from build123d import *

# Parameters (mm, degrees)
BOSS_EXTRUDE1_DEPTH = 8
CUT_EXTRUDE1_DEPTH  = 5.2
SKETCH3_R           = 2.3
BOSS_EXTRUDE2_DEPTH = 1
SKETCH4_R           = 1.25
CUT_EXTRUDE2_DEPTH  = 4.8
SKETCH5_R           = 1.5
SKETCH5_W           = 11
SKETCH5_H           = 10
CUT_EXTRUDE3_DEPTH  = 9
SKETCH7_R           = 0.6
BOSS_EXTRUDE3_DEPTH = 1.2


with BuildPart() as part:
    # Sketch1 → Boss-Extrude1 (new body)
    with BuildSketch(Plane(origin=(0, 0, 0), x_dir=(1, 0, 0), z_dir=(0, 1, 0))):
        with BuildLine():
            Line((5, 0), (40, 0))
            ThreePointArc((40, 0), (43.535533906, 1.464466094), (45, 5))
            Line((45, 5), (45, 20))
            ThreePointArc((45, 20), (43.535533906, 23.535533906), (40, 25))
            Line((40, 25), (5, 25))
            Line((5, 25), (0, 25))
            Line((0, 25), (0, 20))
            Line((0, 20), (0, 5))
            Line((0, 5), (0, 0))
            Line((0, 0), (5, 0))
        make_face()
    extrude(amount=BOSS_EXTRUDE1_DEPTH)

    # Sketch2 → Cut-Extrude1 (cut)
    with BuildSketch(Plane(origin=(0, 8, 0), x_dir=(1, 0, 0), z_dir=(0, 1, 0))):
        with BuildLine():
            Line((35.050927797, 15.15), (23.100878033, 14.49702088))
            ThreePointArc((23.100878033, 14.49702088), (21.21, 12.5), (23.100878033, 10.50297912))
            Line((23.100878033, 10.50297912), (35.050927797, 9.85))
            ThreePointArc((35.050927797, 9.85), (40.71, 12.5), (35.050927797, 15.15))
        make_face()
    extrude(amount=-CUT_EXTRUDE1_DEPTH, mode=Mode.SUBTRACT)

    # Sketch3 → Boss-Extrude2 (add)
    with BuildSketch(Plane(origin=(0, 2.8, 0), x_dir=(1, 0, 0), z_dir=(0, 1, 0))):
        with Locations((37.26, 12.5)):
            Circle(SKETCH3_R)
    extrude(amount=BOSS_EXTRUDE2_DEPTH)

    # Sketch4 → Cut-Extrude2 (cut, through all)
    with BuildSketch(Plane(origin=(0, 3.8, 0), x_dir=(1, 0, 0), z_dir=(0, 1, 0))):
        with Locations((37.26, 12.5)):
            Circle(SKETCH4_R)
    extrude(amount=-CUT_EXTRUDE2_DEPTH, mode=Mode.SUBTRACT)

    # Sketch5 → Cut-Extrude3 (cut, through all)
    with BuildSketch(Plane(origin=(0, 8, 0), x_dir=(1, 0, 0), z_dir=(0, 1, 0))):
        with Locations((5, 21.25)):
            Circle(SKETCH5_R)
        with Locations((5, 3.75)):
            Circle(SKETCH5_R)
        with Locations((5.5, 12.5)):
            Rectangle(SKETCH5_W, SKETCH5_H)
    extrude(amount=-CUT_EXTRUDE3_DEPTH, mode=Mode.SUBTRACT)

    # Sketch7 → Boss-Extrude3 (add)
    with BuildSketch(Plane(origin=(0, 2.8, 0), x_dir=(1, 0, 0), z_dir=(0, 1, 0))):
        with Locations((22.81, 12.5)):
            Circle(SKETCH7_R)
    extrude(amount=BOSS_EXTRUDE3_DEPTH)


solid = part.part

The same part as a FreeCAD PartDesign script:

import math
import FreeCAD as App
import Part
import Sketcher
from FreeCAD import Vector

doc = App.newDocument("Part")
params = doc.addObject("Spreadsheet::Sheet", "Params")
for row, (alias, value) in enumerate([
    ("sketch1_radius", "5 mm"),
    ("sketch1_width", "40 mm"),
    ("sketch1_height", "15 mm"),
    ("pad1_length", "8 mm"),
    ("sketch2_radius", "2 mm"),
    ("sketch2_radius2", "3.45 mm"),
    ("pocket1_length", "5.2 mm"),
    ("sketch3_diameter", "4.6 mm"),
    ("pad2_length", "1 mm"),
    ("sketch4_diameter", "2.5 mm"),
    ("sketch5_diameter", "3 mm"),
    ("sketch5_width", "11 mm"),
    ("sketch5_height", "10 mm"),
    ("sketch6_diameter", "1.2 mm"),
    ("pad3_length", "1.2 mm"),
], start=1):
    params.set(f"A{row}", alias)
    params.set(f"B{row}", "=" + value)
    params.setAlias(f"B{row}", alias)

body = doc.addObject("PartDesign::Body", "Body")

sketch1 = body.newObject("Sketcher::SketchObject", "Sketch")
sketch1.AttachmentSupport = (doc.getObject("XZ_Plane"), [""])
sketch1.MapMode = "FlatFace"
sketch1.addGeometry([
    Part.ArcOfCircle(Part.Circle(Vector(40, -5, 0), Vector(0, 0, 1), 5), math.radians(0), math.radians(90)),
    Part.LineSegment(Vector(45, -5, 0), Vector(45, -20, 0)),
    Part.ArcOfCircle(Part.Circle(Vector(40, -20, 0), Vector(0, 0, 1), 5), math.radians(-90), math.radians(0)),
    Part.LineSegment(Vector(40, -25, 0), Vector(0, -25, 0)),
    Part.LineSegment(Vector(0, -25, 0), Vector(0, 0, 0)),
    Part.LineSegment(Vector(0, 0, 0), Vector(40, 0, 0)),
], False)
sketch1.addConstraint([
    Sketcher.Constraint("Tangent", 0, 1, 1, 1),
    Sketcher.Constraint("Tangent", 1, 2, 2, 2),
    Sketcher.Constraint("Tangent", 2, 1, 3, 1),
    Sketcher.Constraint("Coincident", 3, 2, 4, 1),
    Sketcher.Constraint("Coincident", 4, 2, 5, 1),
    Sketcher.Constraint("Tangent", 5, 2, 0, 2),
    Sketcher.Constraint("Vertical", 1),
    Sketcher.Constraint("Horizontal", 3),
    Sketcher.Constraint("Vertical", 4),
    Sketcher.Constraint("Horizontal", 5),
    Sketcher.Constraint("Coincident", 4, 2, -1, 1),
    Sketcher.Constraint("Equal", 0, 2),
    Sketcher.Constraint("Radius", 0, 5.0),
    Sketcher.Constraint("DistanceX", 3, 2, 3, 1, 40.0),
    Sketcher.Constraint("DistanceY", 1, 2, 1, 1, 15.0),
])
sketch1.setExpression("Constraints[12]", "Params.sketch1_radius")
sketch1.setExpression("Constraints[13]", "Params.sketch1_width")
sketch1.setExpression("Constraints[14]", "Params.sketch1_height")
pad1 = body.newObject("PartDesign::Pad", "Pad")
pad1.Profile = sketch1
pad1.setExpression("Length", "Params.pad1_length")
pad1.Reversed = True

sketch2 = body.newObject("Sketcher::SketchObject", "Sketch001")
sketch2.AttachmentSupport = (doc.getObject("XZ_Plane"), [""])
sketch2.MapMode = "FlatFace"
sketch2.AttachmentOffset = App.Placement(Vector(0, 0, -8), App.Rotation())
sketch2.addGeometry([
    Part.LineSegment(Vector(35.050928, -15.15, 0), Vector(23.100878, -14.497021, 0)),
    Part.ArcOfCircle(Part.Circle(Vector(23.21, -12.5, 0), Vector(0, 0, 1), 2), math.radians(93.127667), math.radians(266.872333)),
    Part.LineSegment(Vector(23.100878, -10.502979, 0), Vector(35.050928, -9.85, 0)),
    Part.ArcOfCircle(Part.Circle(Vector(37.26, -12.5, 0), Vector(0, 0, 1), 3.45), math.radians(-129.814998), math.radians(129.814998)),
], False)
sketch2.addConstraint([
    Sketcher.Constraint("Tangent", 0, 2, 1, 2),
    Sketcher.Constraint("Tangent", 1, 1, 2, 1),
    Sketcher.Constraint("Coincident", 2, 2, 3, 2),
    Sketcher.Constraint("Coincident", 3, 1, 0, 1),
    Sketcher.Constraint("Horizontal", 1, 3, 3, 3),
    Sketcher.Constraint("Vertical", 0, 2, 1, 1),
    Sketcher.Constraint("Radius", 1, 2.0),
    Sketcher.Constraint("Radius", 3, 3.45),
    Sketcher.Constraint("DistanceY", 1, 3, -1, 1, 12.5),
    Sketcher.Constraint("DistanceY", 3, 1, 2, 2, 5.3),
    Sketcher.Constraint("DistanceX", -1, 1, 1, 3, 23.21),
    Sketcher.Constraint("DistanceX", -1, 1, 3, 3, 37.26),
])
sketch2.setExpression("Constraints[6]", "Params.sketch2_radius")
sketch2.setExpression("Constraints[7]", "Params.sketch2_radius2")
pocket1 = body.newObject("PartDesign::Pocket", "Pocket")
pocket1.Profile = sketch2
pocket1.setExpression("Length", "Params.pocket1_length")
pocket1.Reversed = True

sketch3 = body.newObject("Sketcher::SketchObject", "Sketch002")
sketch3.AttachmentSupport = (doc.getObject("XZ_Plane"), [""])
sketch3.MapMode = "FlatFace"
sketch3.AttachmentOffset = App.Placement(Vector(0, 0, -2.8), App.Rotation())
sketch3.addGeometry(Part.Circle(Vector(37.26, -12.5, 0), Vector(0, 0, 1), 2.3), False)
sketch3.addConstraint([
    Sketcher.Constraint("Diameter", 0, 4.6),
    Sketcher.Constraint("DistanceY", 0, 3, -1, 1, 12.5),
    Sketcher.Constraint("DistanceX", -1, 1, 0, 3, 37.26),
])
sketch3.setExpression("Constraints[0]", "Params.sketch3_diameter")
pad2 = body.newObject("PartDesign::Pad", "Pad001")
pad2.Profile = sketch3
pad2.setExpression("Length", "Params.pad2_length")
pad2.Reversed = True

sketch4 = body.newObject("Sketcher::SketchObject", "Sketch003")
sketch4.AttachmentSupport = (doc.getObject("XZ_Plane"), [""])
sketch4.MapMode = "FlatFace"
sketch4.AttachmentOffset = App.Placement(Vector(0, 0, -3.8), App.Rotation())
sketch4.addGeometry(Part.Circle(Vector(37.26, -12.5, 0), Vector(0, 0, 1), 1.25), False)
sketch4.addConstraint([
    Sketcher.Constraint("Diameter", 0, 2.5),
    Sketcher.Constraint("DistanceY", 0, 3, -1, 1, 12.5),
    Sketcher.Constraint("DistanceX", -1, 1, 0, 3, 37.26),
])
sketch4.setExpression("Constraints[0]", "Params.sketch4_diameter")
pocket2 = body.newObject("PartDesign::Pocket", "Pocket001")
pocket2.Profile = sketch4
pocket2.Type = "ThroughAll"
pocket2.Reversed = True

sketch5 = body.newObject("Sketcher::SketchObject", "Sketch004")
sketch5.AttachmentSupport = (doc.getObject("XZ_Plane"), [""])
sketch5.MapMode = "FlatFace"
sketch5.AttachmentOffset = App.Placement(Vector(0, 0, -8), App.Rotation())
sketch5.addGeometry([
    Part.Circle(Vector(5, -21.25, 0), Vector(0, 0, 1), 1.5),
    Part.Circle(Vector(5, -3.75, 0), Vector(0, 0, 1), 1.5),
    Part.LineSegment(Vector(0, -17.5, 0), Vector(0, -7.5, 0)),
    Part.LineSegment(Vector(0, -7.5, 0), Vector(11, -7.5, 0)),
    Part.LineSegment(Vector(11, -7.5, 0), Vector(11, -17.5, 0)),
    Part.LineSegment(Vector(11, -17.5, 0), Vector(0, -17.5, 0)),
], False)
sketch5.addConstraint([
    Sketcher.Constraint("Coincident", 2, 2, 3, 1),
    Sketcher.Constraint("Coincident", 3, 2, 4, 1),
    Sketcher.Constraint("Coincident", 4, 2, 5, 1),
    Sketcher.Constraint("Coincident", 5, 2, 2, 1),
    Sketcher.Constraint("Vertical", 2),
    Sketcher.Constraint("Horizontal", 3),
    Sketcher.Constraint("Vertical", 4),
    Sketcher.Constraint("Horizontal", 5),
    Sketcher.Constraint("Equal", 0, 1),
    Sketcher.Constraint("PointOnObject", 2, 2, -2),
    Sketcher.Constraint("Vertical", 0, 3, 1, 3),
    Sketcher.Constraint("Diameter", 0, 3.0),
    Sketcher.Constraint("DistanceX", 3, 1, 3, 2, 11.0),
    Sketcher.Constraint("DistanceY", 2, 1, 2, 2, 10.0),
    Sketcher.Constraint("DistanceX", -1, 1, 0, 3, 5.0),
    Sketcher.Constraint("DistanceY", 2, 2, -1, 1, 7.5),
    Sketcher.Constraint("DistanceY", 0, 3, 1, 3, 17.5),
    Sketcher.Constraint("DistanceY", 0, 3, -1, 1, 21.25),
])
sketch5.setExpression("Constraints[11]", "Params.sketch5_diameter")
sketch5.setExpression("Constraints[12]", "Params.sketch5_width")
sketch5.setExpression("Constraints[13]", "Params.sketch5_height")
pocket3 = body.newObject("PartDesign::Pocket", "Pocket002")
pocket3.Profile = sketch5
pocket3.Type = "ThroughAll"
pocket3.Reversed = True

sketch6 = body.newObject("Sketcher::SketchObject", "Sketch005")
sketch6.AttachmentSupport = (doc.getObject("XZ_Plane"), [""])
sketch6.MapMode = "FlatFace"
sketch6.AttachmentOffset = App.Placement(Vector(0, 0, -2.8), App.Rotation())
sketch6.addGeometry(Part.Circle(Vector(22.81, -12.5, 0), Vector(0, 0, 1), 0.6), False)
sketch6.addConstraint([
    Sketcher.Constraint("Diameter", 0, 1.2),
    Sketcher.Constraint("DistanceY", 0, 3, -1, 1, 12.5),
    Sketcher.Constraint("DistanceX", -1, 1, 0, 3, 22.81),
])
sketch6.setExpression("Constraints[0]", "Params.sketch6_diameter")
pad3 = body.newObject("PartDesign::Pad", "Pad002")
pad3.Profile = sketch6
pad3.setExpression("Length", "Params.pad3_length")
pad3.Reversed = True

doc.recompute()
